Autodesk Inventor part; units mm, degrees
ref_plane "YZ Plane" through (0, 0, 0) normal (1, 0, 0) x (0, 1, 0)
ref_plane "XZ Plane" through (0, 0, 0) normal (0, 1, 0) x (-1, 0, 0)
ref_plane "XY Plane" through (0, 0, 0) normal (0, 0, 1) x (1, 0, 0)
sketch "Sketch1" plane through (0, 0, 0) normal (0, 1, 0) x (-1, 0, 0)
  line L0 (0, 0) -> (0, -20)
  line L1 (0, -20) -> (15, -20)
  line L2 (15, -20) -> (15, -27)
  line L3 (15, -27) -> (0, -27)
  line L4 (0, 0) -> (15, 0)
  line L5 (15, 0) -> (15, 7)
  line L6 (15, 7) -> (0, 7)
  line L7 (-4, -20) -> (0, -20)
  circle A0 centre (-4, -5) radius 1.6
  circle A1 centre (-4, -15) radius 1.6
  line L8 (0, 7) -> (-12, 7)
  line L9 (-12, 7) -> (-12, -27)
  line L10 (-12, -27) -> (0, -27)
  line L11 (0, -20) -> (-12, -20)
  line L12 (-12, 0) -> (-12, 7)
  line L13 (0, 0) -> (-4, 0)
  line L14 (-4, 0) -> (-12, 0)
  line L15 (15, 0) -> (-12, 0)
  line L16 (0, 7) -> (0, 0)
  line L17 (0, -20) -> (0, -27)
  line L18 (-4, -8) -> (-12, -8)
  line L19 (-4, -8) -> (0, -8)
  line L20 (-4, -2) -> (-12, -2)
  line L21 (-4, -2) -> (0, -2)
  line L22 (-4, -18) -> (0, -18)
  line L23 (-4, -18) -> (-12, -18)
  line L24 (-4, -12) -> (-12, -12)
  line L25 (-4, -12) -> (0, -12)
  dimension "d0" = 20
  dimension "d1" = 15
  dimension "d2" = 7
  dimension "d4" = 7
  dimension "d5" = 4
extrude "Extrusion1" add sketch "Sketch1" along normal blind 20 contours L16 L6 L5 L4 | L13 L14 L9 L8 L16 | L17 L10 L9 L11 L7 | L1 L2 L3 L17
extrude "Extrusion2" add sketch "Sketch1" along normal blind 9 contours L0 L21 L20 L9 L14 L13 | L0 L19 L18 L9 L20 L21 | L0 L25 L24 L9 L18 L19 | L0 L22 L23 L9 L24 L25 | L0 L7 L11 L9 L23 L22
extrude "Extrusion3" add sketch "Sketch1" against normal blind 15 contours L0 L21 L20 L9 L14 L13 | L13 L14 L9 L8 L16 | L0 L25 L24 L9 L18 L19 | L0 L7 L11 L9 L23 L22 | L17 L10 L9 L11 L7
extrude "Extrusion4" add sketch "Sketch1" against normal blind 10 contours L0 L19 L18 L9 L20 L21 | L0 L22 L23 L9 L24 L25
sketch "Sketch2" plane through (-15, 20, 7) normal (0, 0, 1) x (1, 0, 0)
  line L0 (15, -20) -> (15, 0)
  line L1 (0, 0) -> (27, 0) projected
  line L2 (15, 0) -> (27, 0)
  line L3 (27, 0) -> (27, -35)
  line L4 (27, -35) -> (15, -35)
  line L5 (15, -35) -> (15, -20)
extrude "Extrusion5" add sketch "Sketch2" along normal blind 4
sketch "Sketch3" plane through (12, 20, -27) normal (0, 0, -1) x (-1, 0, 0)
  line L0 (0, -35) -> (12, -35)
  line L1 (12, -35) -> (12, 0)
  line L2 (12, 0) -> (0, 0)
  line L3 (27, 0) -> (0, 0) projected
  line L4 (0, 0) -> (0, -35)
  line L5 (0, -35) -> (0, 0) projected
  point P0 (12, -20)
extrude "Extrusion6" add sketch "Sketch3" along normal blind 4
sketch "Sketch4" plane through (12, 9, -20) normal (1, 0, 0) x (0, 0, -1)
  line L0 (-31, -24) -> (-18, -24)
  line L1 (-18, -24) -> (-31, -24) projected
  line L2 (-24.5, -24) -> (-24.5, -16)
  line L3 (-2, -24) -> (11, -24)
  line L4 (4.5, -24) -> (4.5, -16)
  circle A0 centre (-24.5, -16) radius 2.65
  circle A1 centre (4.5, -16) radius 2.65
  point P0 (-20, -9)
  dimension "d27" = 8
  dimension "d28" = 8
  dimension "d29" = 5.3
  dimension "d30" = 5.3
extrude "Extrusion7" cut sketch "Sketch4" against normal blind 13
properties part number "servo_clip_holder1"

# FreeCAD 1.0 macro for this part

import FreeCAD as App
import Part
import Sketcher
from FreeCAD import Vector
Q = App.Units.Quantity

doc = App.newDocument("Part")
body = doc.addObject("PartDesign::Body", "Body")
body.AllowCompound = True

sketch1 = doc.addObject("Sketcher::SketchObject", "Sketch")
body.addObject(sketch1)
sketch1.AttachmentSupport = (doc.XZ_Plane, [""])
sketch1.MapMode = "FlatFace"
sketch1.addGeometry(Part.LineSegment(Vector(-15, 7, 0), Vector(12, 7, 0)), False)
sketch1.addGeometry(Part.LineSegment(Vector(12, 7, 0), Vector(12, 0, 0)), False)
sketch1.addGeometry(Part.LineSegment(Vector(12, 0, 0), Vector(-15, 0, 0)), False)
sketch1.addGeometry(Part.LineSegment(Vector(-15, 0, 0), Vector(-15, 7, 0)), False)
sketch1.addGeometry(Part.LineSegment(Vector(12, -27, 0), Vector(-15, -27, 0)), False)
sketch1.addGeometry(Part.LineSegment(Vector(-15, -27, 0), Vector(-15, -20, 0)), False)
sketch1.addGeometry(Part.LineSegment(Vector(-15, -20, 0), Vector(12, -20, 0)), False)
sketch1.addGeometry(Part.LineSegment(Vector(12, -20, 0), Vector(12, -27, 0)), False)
sketch1.addConstraint(Sketcher.Constraint("Coincident", 0, 2, 1, 1))
sketch1.addConstraint(Sketcher.Constraint("Coincident", 1, 2, 2, 1))
sketch1.addConstraint(Sketcher.Constraint("Coincident", 2, 2, 3, 1))
sketch1.addConstraint(Sketcher.Constraint("Coincident", 3, 2, 0, 1))
sketch1.addConstraint(Sketcher.Constraint("Coincident", 4, 2, 5, 1))
sketch1.addConstraint(Sketcher.Constraint("Coincident", 5, 2, 6, 1))
sketch1.addConstraint(Sketcher.Constraint("Coincident", 6, 2, 7, 1))
sketch1.addConstraint(Sketcher.Constraint("Coincident", 7, 2, 4, 1))
sketch1.addConstraint(Sketcher.Constraint("Horizontal", 0))
sketch1.addConstraint(Sketcher.Constraint("Vertical", 1))
sketch1.addConstraint(Sketcher.Constraint("Horizontal", 2))
sketch1.addConstraint(Sketcher.Constraint("Vertical", 3))
sketch1.addConstraint(Sketcher.Constraint("Horizontal", 4))
sketch1.addConstraint(Sketcher.Constraint("Vertical", 5))
sketch1.addConstraint(Sketcher.Constraint("Horizontal", 6))
sketch1.addConstraint(Sketcher.Constraint("Vertical", 7))
sketch1.addConstraint(Sketcher.Constraint("PointOnObject", 1, 2, -1))
sketch1.addConstraint(Sketcher.Constraint("Vertical", 3, 2, 4, 2))
sketch1.addConstraint(Sketcher.Constraint("Vertical", 1, 2, 6, 2))
sketch1.addConstraint(Sketcher.Constraint("Equal", 3, 5))
sketch1.addConstraint(Sketcher.Constraint("DistanceY", 1, 2, 1, 1, Q("7 mm")))
sketch1.addConstraint(Sketcher.Constraint("DistanceX", 2, 2, -1, 1, Q("15 mm")))
sketch1.addConstraint(Sketcher.Constraint("DistanceY", 5, 2, -1, 1, Q("20 mm")))
sketch1.addConstraint(Sketcher.Constraint("DistanceX", 0, 1, 0, 2, Q("27 mm")))
pad1 = doc.addObject("PartDesign::Pad", "Pad")
body.addObject(pad1)
pad1.Profile = sketch1
pad1.Length = 20
pad1.Reversed = True

sketch2 = doc.addObject("Sketcher::SketchObject", "Sketch001")
body.addObject(sketch2)
sketch2.AttachmentSupport = (doc.XZ_Plane, [""])
sketch2.MapMode = "FlatFace"
sketch2.addGeometry(Part.LineSegment(Vector(0, 0, 0), Vector(12, 0, 0)), False)
sketch2.addGeometry(Part.LineSegment(Vector(12, 0, 0), Vector(12, -20, 0)), False)
sketch2.addGeometry(Part.LineSegment(Vector(12, -20, 0), Vector(0, -20, 0)), False)
sketch2.addGeometry(Part.LineSegment(Vector(0, -20, 0), Vector(0, 0, 0)), False)
sketch2.addGeometry(Part.Circle(Vector(4, -5, 0), Vector(0, 0, 1), 1.6), False)
sketch2.addGeometry(Part.Circle(Vector(4, -15, 0), Vector(0, 0, 1), 1.6), False)
sketch2.addConstraint(Sketcher.Constraint("Coincident", 0, 2, 1, 1))
sketch2.addConstraint(Sketcher.Constraint("Coincident", 1, 2, 2, 1))
sketch2.addConstraint(Sketcher.Constraint("Coincident", 2, 2, 3, 1))
sketch2.addConstraint(Sketcher.Constraint("Coincident", 3, 2, 0, 1))
sketch2.addConstraint(Sketcher.Constraint("Horizontal", 0))
sketch2.addConstraint(Sketcher.Constraint("Vertical", 1))
sketch2.addConstraint(Sketcher.Constraint("Horizontal", 2))
sketch2.addConstraint(Sketcher.Constraint("Vertical", 3))
sketch2.addConstraint(Sketcher.Constraint("Coincident", 3, 2, -1, 1))
sketch2.addConstraint(Sketcher.Constraint("Equal", 4, 5))
sketch2.addConstraint(Sketcher.Constraint("Vertical", 4, 3, 5, 3))
sketch2.addConstraint(Sketcher.Constraint("DistanceY", 1, 2, 1, 1, Q("20 mm")))
sketch2.addConstraint(Sketcher.Constraint("DistanceX", -1, 1, 4, 3, Q("4 mm")))
sketch2.addConstraint(Sketcher.Constraint("DistanceY", 5, 3, -1, 1, Q("15 mm")))
sketch2.addConstraint(Sketcher.Constraint("DistanceY", 1, 2, 4, 3, Q("15 mm")))
sketch2.addConstraint(Sketcher.Constraint("Diameter", 4, Q("3.2 mm")))
sketch2.addConstraint(Sketcher.Constraint("DistanceX", 0, 1, 0, 2, Q("12 mm")))
pad2 = doc.addObject("PartDesign::Pad", "Pad001")
body.addObject(pad2)
pad2.Profile = sketch2
pad2.Length = 9
pad2.Reversed = True

sketch3 = doc.addObject("Sketcher::SketchObject", "Sketch002")
body.addObject(sketch3)
sketch3.AttachmentSupport = (doc.XZ_Plane, [""])
sketch3.MapMode = "FlatFace"
sketch3.addGeometry(Part.LineSegment(Vector(0, -2, 0), Vector(0, 7, 0)), False)
sketch3.addGeometry(Part.LineSegment(Vector(0, 7, 0), Vector(12, 7, 0)), False)
sketch3.addGeometry(Part.LineSegment(Vector(12, 7, 0), Vector(12, -2, 0)), False)
sketch3.addGeometry(Part.LineSegment(Vector(12, -2, 0), Vector(0, -2, 0)), False)
sketch3.addGeometry(Part.LineSegment(Vector(0, -12, 0), Vector(0, -8, 0)), False)
sketch3.addGeometry(Part.LineSegment(Vector(0, -8, 0), Vector(12, -8, 0)), False)
sketch3.addGeometry(Part.LineSegment(Vector(12, -8, 0), Vector(12, -12, 0)), False)
sketch3.addGeometry(Part.LineSegment(Vector(12, -12, 0), Vector(0, -12, 0)), False)
sketch3.addGeometry(Part.LineSegment(Vector(0, -18, 0), Vector(12, -18, 0)), False)
sketch3.addGeometry(Part.LineSegment(Vector(12, -18, 0), Vector(12, -27, 0)), False)
sketch3.addGeometry(Part.LineSegment(Vector(12, -27, 0), Vector(0, -27, 0)), False)
sketch3.addGeometry(Part.LineSegment(Vector(0, -27, 0), Vector(0, -18, 0)), False)
sketch3.addConstraint(Sketcher.Constraint("Coincident", 0, 2, 1, 1))
sketch3.addConstraint(Sketcher.Constraint("Coincident", 1, 2, 2, 1))
sketch3.addConstraint(Sketcher.Constraint("Coincident", 2, 2, 3, 1))
sketch3.addConstraint(Sketcher.Constraint("Coincident", 3, 2, 0, 1))
sketch3.addConstraint(Sketcher.Constraint("Coincident", 4, 2, 5, 1))
sketch3.addConstraint(Sketcher.Constraint("Coincident", 5, 2, 6, 1))
sketch3.addConstraint(Sketcher.Constraint("Coincident", 6, 2, 7, 1))
sketch3.addConstraint(Sketcher.Constraint("Coincident", 7, 2, 4, 1))
sketch3.addConstraint(Sketcher.Constraint("Coincident", 8, 2, 9, 1))
sketch3.addConstraint(Sketcher.Constraint("Coincident", 9, 2, 10, 1))
sketch3.addConstraint(Sketcher.Constraint("Coincident", 10, 2, 11, 1))
sketch3.addConstraint(Sketcher.Constraint("Coincident", 11, 2, 8, 1))
sketch3.addConstraint(Sketcher.Constraint("Vertical", 0))
sketch3.addConstraint(Sketcher.Constraint("Horizontal", 1))
sketch3.addConstraint(Sketcher.Constraint("Vertical", 2))
sketch3.addConstraint(Sketcher.Constraint("Horizontal", 3))
sketch3.addConstraint(Sketcher.Constraint("Vertical", 4))
sketch3.addConstraint(Sketcher.Constraint("Horizontal", 5))
sketch3.addConstraint(Sketcher.Constraint("Vertical", 6))
sketch3.addConstraint(Sketcher.Constraint("Horizontal", 7))
sketch3.addConstraint(Sketcher.Constraint("Horizontal", 8))
sketch3.addConstraint(Sketcher.Constraint("Vertical", 9))
sketch3.addConstraint(Sketcher.Constraint("Horizontal", 10))
sketch3.addConstraint(Sketcher.Constraint("Vertical", 11))
sketch3.addConstraint(Sketcher.Constraint("PointOnObject", 0, 2, -2))
sketch3.addConstraint(Sketcher.Constraint("PointOnObject", 4, 2, -2))
sketch3.addConstraint(Sketcher.Constraint("PointOnObject", 10, 2, -2))
sketch3.addConstraint(Sketcher.Constraint("Vertical", 2, 2, 5, 2))
sketch3.addConstraint(Sketcher.Constraint("Vertical", 6, 2, 8, 2))
sketch3.addConstraint(Sketcher.Constraint("Equal", 2, 9))
sketch3.addConstraint(Sketcher.Constraint("DistanceY", 4, 1, 4, 2, Q("4 mm")))
sketch3.addConstraint(Sketcher.Constraint("DistanceY", -1, 1, 0, 2, Q("7 mm")))
sketch3.addConstraint(Sketcher.Constraint("DistanceY", 4, 2, 0, 2, Q("15 mm")))
sketch3.addConstraint(Sketcher.Constraint("DistanceY", 9, 2, 6, 2, Q("15 mm")))
sketch3.addConstraint(Sketcher.Constraint("DistanceX", 1, 1, 1, 2, Q("12 mm")))
sketch3.addConstraint(Sketcher.Constraint("DistanceY", 0, 1, 0, 2, Q("9 mm")))
pad3 = doc.addObject("PartDesign::Pad", "Pad002")
body.addObject(pad3)
pad3.Profile = sketch3
pad3.Length = 15

sketch4 = doc.addObject("Sketcher::SketchObject", "Sketch003")
body.addObject(sketch4)
sketch4.AttachmentSupport = (doc.XZ_Plane, [""])
sketch4.MapMode = "FlatFace"
sketch4.addGeometry(Part.LineSegment(Vector(0, -8, 0), Vector(0, -2, 0)), False)
sketch4.addGeometry(Part.LineSegment(Vector(0, -2, 0), Vector(12, -2, 0)), False)
sketch4.addGeometry(Part.LineSegment(Vector(12, -2, 0), Vector(12, -8, 0)), False)
sketch4.addGeometry(Part.LineSegment(Vector(12, -8, 0), Vector(0, -8, 0)), False)
sketch4.addGeometry(Part.Circle(Vector(4, -5, 0), Vector(0, 0, 1), 1.6), False)
sketch4.addGeometry(Part.LineSegment(Vector(0, -18, 0), Vector(0, -12, 0)), False)
sketch4.addGeometry(Part.LineSegment(Vector(0, -12, 0), Vector(12, -12, 0)), False)
sketch4.addGeometry(Part.LineSegment(Vector(12, -12, 0), Vector(12, -18, 0)), False)
sketch4.addGeometry(Part.LineSegment(Vector(12, -18, 0), Vector(0, -18, 0)), False)
sketch4.addGeometry(Part.Circle(Vector(4, -15, 0), Vector(0, 0, 1), 1.6), False)
sketch4.addConstraint(Sketcher.Constraint("Coincident", 0, 2, 1, 1))
sketch4.addConstraint(Sketcher.Constraint("Coincident", 1, 2, 2, 1))
sketch4.addConstraint(Sketcher.Constraint("Coincident", 2, 2, 3, 1))
sketch4.addConstraint(Sketcher.Constraint("Coincident", 3, 2, 0, 1))
sketch4.addConstraint(Sketcher.Constraint("Coincident", 5, 2, 6, 1))
sketch4.addConstraint(Sketcher.Constraint("Coincident", 6, 2, 7, 1))
sketch4.addConstraint(Sketcher.Constraint("Coincident", 7, 2, 8, 1))
sketch4.addConstraint(Sketcher.Constraint("Coincident", 8, 2, 5, 1))
sketch4.addConstraint(Sketcher.Constraint("Vertical", 0))
sketch4.addConstraint(Sketcher.Constraint("Horizontal", 1))
sketch4.addConstraint(Sketcher.Constraint("Vertical", 2))
sketch4.addConstraint(Sketcher.Constraint("Horizontal", 3))
sketch4.addConstraint(Sketcher.Constraint("Vertical", 5))
sketch4.addConstraint(Sketcher.Constraint("Horizontal", 6))
sketch4.addConstraint(Sketcher.Constraint("Vertical", 7))
sketch4.addConstraint(Sketcher.Constraint("Horizontal", 8))
sketch4.addConstraint(Sketcher.Constraint("Equal", 4, 9))
sketch4.addConstraint(Sketcher.Constraint("PointOnObject", 0, 2, -2))
sketch4.addConstraint(Sketcher.Constraint("PointOnObject", 5, 2, -2))
sketch4.addConstraint(Sketcher.Constraint("Vertical", 4, 3, 9, 3))
sketch4.addConstraint(Sketcher.Constraint("Vertical", 2, 2, 6, 2))
sketch4.addConstraint(Sketcher.Constraint("Equal", 2, 5))
sketch4.addConstraint(Sketcher.Constraint("DistanceX", -1, 1, 4, 3, Q("4 mm")))
sketch4.addConstraint(Sketcher.Constraint("DistanceY", 9, 3, -1, 1, Q("15 mm")))
sketch4.addConstraint(Sketcher.Constraint("DistanceY", 9, 3, 2, 2, Q("7 mm")))
sketch4.addConstraint(Sketcher.Constraint("DistanceY", 5, 2, 3, 2, Q("4 mm")))
sketch4.addConstraint(Sketcher.Constraint("DistanceY", 5, 2, 4, 3, Q("7 mm")))
sketch4.addConstraint(Sketcher.Constraint("Diameter", 4, Q("3.2 mm")))
sketch4.addConstraint(Sketcher.Constraint("DistanceX", 1, 1, 1, 2, Q("12 mm")))
sketch4.addConstraint(Sketcher.Constraint("DistanceY", 0, 1, 0, 2, Q("6 mm")))
pad4 = doc.addObject("PartDesign::Pad", "Pad003")
body.addObject(pad4)
pad4.Profile = sketch4
pad4.Length = 10

sketch5 = doc.addObject("Sketcher::SketchObject", "Sketch004")
body.addObject(sketch5)
sketch5.AttachmentSupport = (doc.XY_Plane, [""])
sketch5.MapMode = "FlatFace"
sketch5.AttachmentOffset = App.Placement(Vector(0, 0, 7), App.Rotation())
sketch5.addGeometry(Part.LineSegment(Vector(0, 20, 0), Vector(0, -15, 0)), False)
sketch5.addGeometry(Part.LineSegment(Vector(0, -15, 0), Vector(12, -15, 0)), False)
sketch5.addGeometry(Part.LineSegment(Vector(12, -15, 0), Vector(12, 20, 0)), False)
sketch5.addGeometry(Part.LineSegment(Vector(12, 20, 0), Vector(0, 20, 0)), False)
sketch5.addConstraint(Sketcher.Constraint("Coincident", 0, 2, 1, 1))
sketch5.addConstraint(Sketcher.Constraint("Coincident", 1, 2, 2, 1))
sketch5.addConstraint(Sketcher.Constraint("Coincident", 2, 2, 3, 1))
sketch5.addConstraint(Sketcher.Constraint("Coincident", 3, 2, 0, 1))
sketch5.addConstraint(Sketcher.Constraint("Vertical", 0))
sketch5.addConstraint(Sketcher.Constraint("Horizontal", 1))
sketch5.addConstraint(Sketcher.Constraint("Vertical", 2))
sketch5.addConstraint(Sketcher.Constraint("Horizontal", 3))
sketch5.addConstraint(Sketcher.Constraint("PointOnObject", 0, 2, -2))
sketch5.addConstraint(Sketcher.Constraint("DistanceX", 1, 1, 1, 2, Q("12 mm")))
sketch5.addConstraint(Sketcher.Constraint("DistanceY", 0, 2, 0, 1, Q("35 mm")))
sketch5.addConstraint(Sketcher.Constraint("DistanceY", 0, 2, -1, 1, Q("15 mm")))
pad5 = doc.addObject("PartDesign::Pad", "Pad004")
body.addObject(pad5)
pad5.Profile = sketch5
pad5.Length = 4

sketch6 = doc.addObject("Sketcher::SketchObject", "Sketch005")
body.addObject(sketch6)
sketch6.AttachmentSupport = (doc.XY_Plane, [""])
sketch6.MapMode = "FlatFace"
sketch6.AttachmentOffset = App.Placement(Vector(0, 0, -27), App.Rotation())
sketch6.addGeometry(Part.LineSegment(Vector(12, 20, 0), Vector(12, -15, 0)), False)
sketch6.addGeometry(Part.LineSegment(Vector(12, -15, 0), Vector(0, -15, 0)), False)
sketch6.addGeometry(Part.LineSegment(Vector(0, -15, 0), Vector(0, 20, 0)), False)
sketch6.addGeometry(Part.LineSegment(Vector(0, 20, 0), Vector(12, 20, 0)), False)
sketch6.addConstraint(Sketcher.Constraint("Coincident", 0, 2, 1, 1))
sketch6.addConstraint(Sketcher.Constraint("Coincident", 1, 2, 2, 1))
sketch6.addConstraint(Sketcher.Constraint("Coincident", 2, 2, 3, 1))
sketch6.addConstraint(Sketcher.Constraint("Coincident", 3, 2, 0, 1))
sketch6.addConstraint(Sketcher.Constraint("Vertical", 0))
sketch6.addConstraint(Sketcher.Constraint("Horizontal", 1))
sketch6.addConstraint(Sketcher.Constraint("Vertical", 2))
sketch6.addConstraint(Sketcher.Constraint("Horizontal", 3))
sketch6.addConstraint(Sketcher.Constraint("PointOnObject", 1, 2, -2))
sketch6.addConstraint(Sketcher.Constraint("DistanceX", 1, 2, 1, 1, Q("12 mm")))
sketch6.addConstraint(Sketcher.Constraint("DistanceY", 0, 2, 0, 1, Q("35 mm")))
sketch6.addConstraint(Sketcher.Constraint("DistanceY", 0, 2, -1, 1, Q("15 mm")))
pad6 = doc.addObject("PartDesign::Pad", "Pad005")
body.addObject(pad6)
pad6.Profile = sketch6
pad6.Length = 4
pad6.Reversed = True

sketch7 = doc.addObject("Sketcher::SketchObject", "Sketch006")
body.addObject(sketch7)
sketch7.AttachmentSupport = (doc.YZ_Plane, [""])
sketch7.MapMode = "FlatFace"
sketch7.AttachmentOffset = App.Placement(Vector(0, 0, 12), App.Rotation())
sketch7.addGeometry(Part.Circle(Vector(-7, 4.5, 0), Vector(0, 0, 1), 2.6), False)
sketch7.addGeometry(Part.Circle(Vector(-7, -24.5, 0), Vector(0, 0, 1), 2.6), False)
sketch7.addConstraint(Sketcher.Constraint("Equal", 0, 1))
sketch7.addConstraint(Sketcher.Constraint("Vertical", 0, 3, 1, 3))
sketch7.addConstraint(Sketcher.Constraint("Diameter", 0, Q("5.3 mm")))
sketch7.addConstraint(Sketcher.Constraint("DistanceX", 0, 3, -1, 1, Q("7 mm")))
sketch7.addConstraint(Sketcher.Constraint("DistanceY", 1, 3, 0, 3, Q("29 mm")))
sketch7.addConstraint(Sketcher.Constraint("DistanceY", -1, 1, 0, 3, Q("4.5 mm")))
pocket1 = doc.addObject("PartDesign::Pocket", "Pocket")
body.addObject(pocket1)
pocket1.Profile = sketch7
pocket1.Length = 13

doc.recompute()
